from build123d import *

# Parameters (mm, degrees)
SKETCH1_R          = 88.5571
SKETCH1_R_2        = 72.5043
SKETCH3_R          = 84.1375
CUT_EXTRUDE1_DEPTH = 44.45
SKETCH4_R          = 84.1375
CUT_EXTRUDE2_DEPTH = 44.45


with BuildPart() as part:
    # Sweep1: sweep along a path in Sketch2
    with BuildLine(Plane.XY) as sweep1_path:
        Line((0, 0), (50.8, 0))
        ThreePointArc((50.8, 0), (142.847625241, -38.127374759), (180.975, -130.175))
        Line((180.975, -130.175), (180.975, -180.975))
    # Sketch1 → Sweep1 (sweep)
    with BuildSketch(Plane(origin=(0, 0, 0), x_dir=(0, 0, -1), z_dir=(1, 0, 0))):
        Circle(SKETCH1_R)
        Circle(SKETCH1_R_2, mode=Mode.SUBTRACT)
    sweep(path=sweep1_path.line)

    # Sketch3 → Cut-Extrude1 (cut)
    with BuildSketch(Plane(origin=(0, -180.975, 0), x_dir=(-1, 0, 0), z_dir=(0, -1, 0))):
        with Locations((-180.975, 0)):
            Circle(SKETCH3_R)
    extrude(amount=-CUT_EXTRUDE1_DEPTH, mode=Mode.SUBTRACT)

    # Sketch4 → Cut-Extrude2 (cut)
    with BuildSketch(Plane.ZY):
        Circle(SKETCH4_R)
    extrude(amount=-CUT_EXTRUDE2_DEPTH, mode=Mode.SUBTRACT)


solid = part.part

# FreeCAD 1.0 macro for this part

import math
import FreeCAD as App
import Part
import Sketcher
from FreeCAD import Vector
Q = App.Units.Quantity

doc = App.newDocument("Part")
params = doc.addObject("Spreadsheet::Sheet", "Params")
for row, (alias, value) in enumerate([
    ("sketch1_diameter", "6.973 in"),
    ("sketch1_diameter2", "5.709 in"),
    ("sketch2_width", "2 in"),
    ("sketch2_radius", "5.125 in"),
    ("sketch3_diameter", "6.625 in"),
    ("pocket1_length", "1.75 in"),
    ("sketch4_diameter", "6.625 in"),
    ("pocket2_length", "1.75 in"),
], start=1):
    params.set(f"A{row}", alias)
    params.set(f"B{row}", "=" + value)
    params.setAlias(f"B{row}", alias)

body = doc.addObject("PartDesign::Body", "Body")

# Sketch on YZ plane
sketch1 = doc.addObject("Sketcher::SketchObject", "Sketch")
body.addObject(sketch1)
sketch1.AttachmentSupport = (doc.YZ_Plane, [""])
sketch1.MapMode = "FlatFace"
sketch1.addGeometry([
    Part.Circle(Vector(0, 0, 0), Vector(0, 0, 1), 88.5571),
    Part.Circle(Vector(0, 0, 0), Vector(0, 0, 1), 72.5043),
], False)
sketch1.addConstraint([
    Sketcher.Constraint("Coincident", 0, 3, -1, 1),
    Sketcher.Constraint("Coincident", 1, 3, -1, 1),
    Sketcher.Constraint("Diameter", 0, Q("6.973 in")),
    Sketcher.Constraint("Diameter", 1, Q("5.709 in")),
])
sketch1.setExpression("Constraints[2]", "Params.sketch1_diameter")
sketch1.setExpression("Constraints[3]", "Params.sketch1_diameter2")

# Sketch on XY plane
sketch2 = doc.addObject("Sketcher::SketchObject", "Sketch001")
body.addObject(sketch2)
sketch2.AttachmentSupport = (doc.XY_Plane, [""])
sketch2.MapMode = "FlatFace"
sketch2.addGeometry([
    Part.LineSegment(Vector(0, 0, 0), Vector(50.8, 0, 0)),
    Part.ArcOfCircle(Part.Circle(Vector(50.8, -130.175, 0), Vector(0, 0, 1), 130.175), math.radians(0), math.radians(90)),
    Part.LineSegment(Vector(180.975, -130.175, 0), Vector(180.975, -180.975, 0)),
], False)
sketch2.addConstraint([
    Sketcher.Constraint("Tangent", 0, 2, 1, 2),
    Sketcher.Constraint("Tangent", 1, 1, 2, 1),
    Sketcher.Constraint("Horizontal", 0),
    Sketcher.Constraint("Vertical", 2),
    Sketcher.Constraint("Coincident", 0, 1, -1, 1),
    Sketcher.Constraint("Equal", 0, 2),
    Sketcher.Constraint("DistanceX", 0, 1, 0, 2, Q("2 in")),
    Sketcher.Constraint("Radius", 1, Q("5.125 in")),
])
sketch2.setExpression("Constraints[6]", "Params.sketch2_width")
sketch2.setExpression("Constraints[7]", "Params.sketch2_radius")
doc.recompute()

additivepipe = doc.addObject("PartDesign::AdditivePipe", "AdditivePipe")
body.addObject(additivepipe)
additivepipe.Profile = sketch1
additivepipe.Spine = (sketch2, ["Edge1", "Edge2", "Edge3"])

# Sketch on XZ plane
sketch3 = doc.addObject("Sketcher::SketchObject", "Sketch002")
body.addObject(sketch3)
sketch3.AttachmentSupport = (doc.XZ_Plane, [""])
sketch3.MapMode = "FlatFace"
sketch3.AttachmentOffset = App.Placement(Vector(0, 0, 7.125 * 25.4), App.Rotation())
sketch3.addGeometry(Part.Circle(Vector(180.975, 0, 0), Vector(0, 0, 1), 84.1375), False)
sketch3.addConstraint([
    Sketcher.Constraint("PointOnObject", 0, 3, -1),
    Sketcher.Constraint("Diameter", 0, Q("6.625 in")),
    Sketcher.Constraint("DistanceX", -1, 1, 0, 3, Q("7.125 in")),
])
sketch3.setExpression("Constraints[1]", "Params.sketch3_diameter")
pocket1 = doc.addObject("PartDesign::Pocket", "Pocket")
body.addObject(pocket1)
pocket1.Profile = sketch3
pocket1.setExpression("Length", "Params.pocket1_length")

# Sketch on YZ plane
sketch4 = doc.addObject("Sketcher::SketchObject", "Sketch003")
body.addObject(sketch4)
sketch4.AttachmentSupport = (doc.YZ_Plane, [""])
sketch4.MapMode = "FlatFace"
sketch4.addGeometry(Part.Circle(Vector(0, 0, 0), Vector(0, 0, 1), 84.1375), False)
sketch4.addConstraint([
    Sketcher.Constraint("Coincident", 0, 3, -1, 1),
    Sketcher.Constraint("Diameter", 0, Q("6.625 in")),
])
sketch4.setExpression("Constraints[1]", "Params.sketch4_diameter")
pocket2 = doc.addObject("PartDesign::Pocket", "Pocket001")
body.addObject(pocket2)
pocket2.Profile = sketch4
pocket2.setExpression("Length", "Params.pocket2_length")
pocket2.Reversed = True

doc.recompute()
